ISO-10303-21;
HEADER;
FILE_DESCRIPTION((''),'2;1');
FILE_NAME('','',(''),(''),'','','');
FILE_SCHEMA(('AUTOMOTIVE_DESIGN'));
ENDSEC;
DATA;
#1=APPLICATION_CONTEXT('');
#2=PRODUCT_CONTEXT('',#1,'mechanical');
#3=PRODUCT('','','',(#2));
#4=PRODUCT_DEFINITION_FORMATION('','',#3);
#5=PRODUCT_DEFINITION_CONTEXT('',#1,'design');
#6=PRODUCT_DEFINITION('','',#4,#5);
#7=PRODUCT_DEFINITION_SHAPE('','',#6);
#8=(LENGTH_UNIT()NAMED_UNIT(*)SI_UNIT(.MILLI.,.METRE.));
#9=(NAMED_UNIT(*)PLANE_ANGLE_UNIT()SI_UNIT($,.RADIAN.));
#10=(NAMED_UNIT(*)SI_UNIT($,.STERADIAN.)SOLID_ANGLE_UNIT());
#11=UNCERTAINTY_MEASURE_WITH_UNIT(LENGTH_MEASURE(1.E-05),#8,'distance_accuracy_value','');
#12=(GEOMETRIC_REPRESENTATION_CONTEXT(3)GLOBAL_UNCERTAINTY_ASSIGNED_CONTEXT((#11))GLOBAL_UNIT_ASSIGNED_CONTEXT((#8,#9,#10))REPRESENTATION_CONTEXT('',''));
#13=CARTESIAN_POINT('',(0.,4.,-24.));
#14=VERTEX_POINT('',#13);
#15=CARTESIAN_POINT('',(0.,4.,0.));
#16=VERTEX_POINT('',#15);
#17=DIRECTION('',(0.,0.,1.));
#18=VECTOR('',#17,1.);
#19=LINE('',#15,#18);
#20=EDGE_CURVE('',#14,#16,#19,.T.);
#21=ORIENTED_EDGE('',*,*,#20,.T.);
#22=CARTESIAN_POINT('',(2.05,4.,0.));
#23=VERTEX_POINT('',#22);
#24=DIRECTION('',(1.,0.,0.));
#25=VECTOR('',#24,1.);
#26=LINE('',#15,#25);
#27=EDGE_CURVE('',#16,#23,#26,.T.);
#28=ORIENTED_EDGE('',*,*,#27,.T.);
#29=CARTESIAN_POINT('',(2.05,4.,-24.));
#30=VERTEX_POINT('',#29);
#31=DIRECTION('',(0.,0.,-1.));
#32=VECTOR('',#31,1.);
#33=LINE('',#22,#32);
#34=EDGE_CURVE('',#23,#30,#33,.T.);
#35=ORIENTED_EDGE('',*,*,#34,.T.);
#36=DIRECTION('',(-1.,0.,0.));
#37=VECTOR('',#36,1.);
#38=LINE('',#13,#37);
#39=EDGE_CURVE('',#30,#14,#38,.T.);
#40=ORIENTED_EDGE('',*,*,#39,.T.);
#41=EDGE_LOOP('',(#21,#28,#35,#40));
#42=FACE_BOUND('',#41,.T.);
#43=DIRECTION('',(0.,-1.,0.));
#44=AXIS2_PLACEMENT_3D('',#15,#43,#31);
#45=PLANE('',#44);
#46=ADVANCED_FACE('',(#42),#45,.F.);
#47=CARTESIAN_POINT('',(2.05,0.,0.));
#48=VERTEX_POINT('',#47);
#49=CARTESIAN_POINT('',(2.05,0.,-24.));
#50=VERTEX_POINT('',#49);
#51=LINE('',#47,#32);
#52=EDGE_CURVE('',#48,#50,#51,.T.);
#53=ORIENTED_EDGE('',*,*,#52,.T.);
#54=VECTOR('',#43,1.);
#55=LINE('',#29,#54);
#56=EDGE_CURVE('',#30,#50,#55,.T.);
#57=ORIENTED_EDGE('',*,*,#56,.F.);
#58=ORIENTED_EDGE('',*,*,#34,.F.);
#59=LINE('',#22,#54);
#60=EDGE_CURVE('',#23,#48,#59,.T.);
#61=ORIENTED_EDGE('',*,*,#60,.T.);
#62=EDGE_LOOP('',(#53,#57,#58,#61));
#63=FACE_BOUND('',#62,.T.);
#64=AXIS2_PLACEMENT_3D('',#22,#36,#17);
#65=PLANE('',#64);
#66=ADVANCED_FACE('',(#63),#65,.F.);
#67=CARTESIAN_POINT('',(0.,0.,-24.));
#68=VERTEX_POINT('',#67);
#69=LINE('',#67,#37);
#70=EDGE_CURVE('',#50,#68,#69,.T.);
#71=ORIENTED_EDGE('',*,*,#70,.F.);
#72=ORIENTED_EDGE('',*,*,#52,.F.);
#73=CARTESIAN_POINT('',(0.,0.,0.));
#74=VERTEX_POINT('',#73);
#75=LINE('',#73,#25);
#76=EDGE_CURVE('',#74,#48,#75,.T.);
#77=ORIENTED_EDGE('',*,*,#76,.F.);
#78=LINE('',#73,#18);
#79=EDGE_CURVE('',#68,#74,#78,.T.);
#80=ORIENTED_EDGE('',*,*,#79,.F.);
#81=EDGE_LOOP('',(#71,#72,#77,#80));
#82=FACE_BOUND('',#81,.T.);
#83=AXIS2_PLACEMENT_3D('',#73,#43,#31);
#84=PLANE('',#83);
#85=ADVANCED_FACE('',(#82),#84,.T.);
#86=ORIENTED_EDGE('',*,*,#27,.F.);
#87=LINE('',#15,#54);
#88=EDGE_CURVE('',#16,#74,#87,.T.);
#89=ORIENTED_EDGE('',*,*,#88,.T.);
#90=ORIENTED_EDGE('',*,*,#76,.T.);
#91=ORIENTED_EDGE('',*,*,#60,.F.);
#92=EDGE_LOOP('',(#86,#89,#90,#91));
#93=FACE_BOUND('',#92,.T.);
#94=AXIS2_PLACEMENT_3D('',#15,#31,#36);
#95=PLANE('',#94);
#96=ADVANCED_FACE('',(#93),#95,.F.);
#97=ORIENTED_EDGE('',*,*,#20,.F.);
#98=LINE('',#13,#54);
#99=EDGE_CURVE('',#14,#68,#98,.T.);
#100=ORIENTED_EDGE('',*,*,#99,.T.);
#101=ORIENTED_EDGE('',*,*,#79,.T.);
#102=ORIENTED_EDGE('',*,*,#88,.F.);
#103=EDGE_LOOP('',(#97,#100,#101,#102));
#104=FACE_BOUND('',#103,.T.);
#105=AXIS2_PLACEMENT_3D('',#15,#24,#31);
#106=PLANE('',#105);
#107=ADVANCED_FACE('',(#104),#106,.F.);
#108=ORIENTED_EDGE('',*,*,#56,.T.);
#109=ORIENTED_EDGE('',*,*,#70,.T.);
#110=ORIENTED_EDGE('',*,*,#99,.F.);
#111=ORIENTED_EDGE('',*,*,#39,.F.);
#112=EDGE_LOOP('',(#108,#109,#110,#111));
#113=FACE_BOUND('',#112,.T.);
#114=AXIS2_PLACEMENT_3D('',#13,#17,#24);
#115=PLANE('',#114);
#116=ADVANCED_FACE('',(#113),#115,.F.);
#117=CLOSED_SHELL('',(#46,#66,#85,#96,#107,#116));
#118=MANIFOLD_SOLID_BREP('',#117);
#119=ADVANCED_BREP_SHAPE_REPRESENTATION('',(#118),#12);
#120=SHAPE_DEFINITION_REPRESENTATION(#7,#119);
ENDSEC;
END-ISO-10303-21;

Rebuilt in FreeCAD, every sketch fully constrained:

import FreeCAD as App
import Part
import Sketcher


def add_polygon(sketch, points):
    """Adds a closed chain of lines whose ends are joined by coincident constraints."""
    first, n = sketch.GeometryCount, len(points)
    for a, b in zip(points, points[1:] + points[:1]):
        sketch.addGeometry(Part.LineSegment(App.Vector(*a, 0), App.Vector(*b, 0)), False)
    for i in range(n):
        sketch.addConstraint(Sketcher.Constraint("Coincident", first + i, 2, first + (i + 1) % n, 1))

doc = App.newDocument("Part")
body = doc.addObject("PartDesign::Body", "Body")

# Sketch on XZ plane
sketch1 = body.newObject("Sketcher::SketchObject", "Sketch")
sketch1.AttachmentSupport = (doc.getObject("XZ_Plane"), [""])
sketch1.MapMode = "FlatFace"
add_polygon(sketch1, [(0, -24), (0, 0), (2, 0), (2, -24)])  # lines 0-3
sketch1.addConstraint(Sketcher.Constraint("Vertical", 0))
sketch1.addConstraint(Sketcher.Constraint("Horizontal", 1))
sketch1.addConstraint(Sketcher.Constraint("Vertical", 2))
sketch1.addConstraint(Sketcher.Constraint("Horizontal", 3))
sketch1.addConstraint(Sketcher.Constraint("Coincident", 0, 2, -1, 1))
sketch1.addConstraint(Sketcher.Constraint("DistanceY", 0, 1, 0, 2, 24.0))
sketch1.addConstraint(Sketcher.Constraint("DistanceX", 1, 1, 1, 2, 2.05))
pad1 = body.newObject("PartDesign::Pad", "Pad")
pad1.Profile = sketch1
pad1.Length = 4
pad1.Reversed = True

doc.recompute()
